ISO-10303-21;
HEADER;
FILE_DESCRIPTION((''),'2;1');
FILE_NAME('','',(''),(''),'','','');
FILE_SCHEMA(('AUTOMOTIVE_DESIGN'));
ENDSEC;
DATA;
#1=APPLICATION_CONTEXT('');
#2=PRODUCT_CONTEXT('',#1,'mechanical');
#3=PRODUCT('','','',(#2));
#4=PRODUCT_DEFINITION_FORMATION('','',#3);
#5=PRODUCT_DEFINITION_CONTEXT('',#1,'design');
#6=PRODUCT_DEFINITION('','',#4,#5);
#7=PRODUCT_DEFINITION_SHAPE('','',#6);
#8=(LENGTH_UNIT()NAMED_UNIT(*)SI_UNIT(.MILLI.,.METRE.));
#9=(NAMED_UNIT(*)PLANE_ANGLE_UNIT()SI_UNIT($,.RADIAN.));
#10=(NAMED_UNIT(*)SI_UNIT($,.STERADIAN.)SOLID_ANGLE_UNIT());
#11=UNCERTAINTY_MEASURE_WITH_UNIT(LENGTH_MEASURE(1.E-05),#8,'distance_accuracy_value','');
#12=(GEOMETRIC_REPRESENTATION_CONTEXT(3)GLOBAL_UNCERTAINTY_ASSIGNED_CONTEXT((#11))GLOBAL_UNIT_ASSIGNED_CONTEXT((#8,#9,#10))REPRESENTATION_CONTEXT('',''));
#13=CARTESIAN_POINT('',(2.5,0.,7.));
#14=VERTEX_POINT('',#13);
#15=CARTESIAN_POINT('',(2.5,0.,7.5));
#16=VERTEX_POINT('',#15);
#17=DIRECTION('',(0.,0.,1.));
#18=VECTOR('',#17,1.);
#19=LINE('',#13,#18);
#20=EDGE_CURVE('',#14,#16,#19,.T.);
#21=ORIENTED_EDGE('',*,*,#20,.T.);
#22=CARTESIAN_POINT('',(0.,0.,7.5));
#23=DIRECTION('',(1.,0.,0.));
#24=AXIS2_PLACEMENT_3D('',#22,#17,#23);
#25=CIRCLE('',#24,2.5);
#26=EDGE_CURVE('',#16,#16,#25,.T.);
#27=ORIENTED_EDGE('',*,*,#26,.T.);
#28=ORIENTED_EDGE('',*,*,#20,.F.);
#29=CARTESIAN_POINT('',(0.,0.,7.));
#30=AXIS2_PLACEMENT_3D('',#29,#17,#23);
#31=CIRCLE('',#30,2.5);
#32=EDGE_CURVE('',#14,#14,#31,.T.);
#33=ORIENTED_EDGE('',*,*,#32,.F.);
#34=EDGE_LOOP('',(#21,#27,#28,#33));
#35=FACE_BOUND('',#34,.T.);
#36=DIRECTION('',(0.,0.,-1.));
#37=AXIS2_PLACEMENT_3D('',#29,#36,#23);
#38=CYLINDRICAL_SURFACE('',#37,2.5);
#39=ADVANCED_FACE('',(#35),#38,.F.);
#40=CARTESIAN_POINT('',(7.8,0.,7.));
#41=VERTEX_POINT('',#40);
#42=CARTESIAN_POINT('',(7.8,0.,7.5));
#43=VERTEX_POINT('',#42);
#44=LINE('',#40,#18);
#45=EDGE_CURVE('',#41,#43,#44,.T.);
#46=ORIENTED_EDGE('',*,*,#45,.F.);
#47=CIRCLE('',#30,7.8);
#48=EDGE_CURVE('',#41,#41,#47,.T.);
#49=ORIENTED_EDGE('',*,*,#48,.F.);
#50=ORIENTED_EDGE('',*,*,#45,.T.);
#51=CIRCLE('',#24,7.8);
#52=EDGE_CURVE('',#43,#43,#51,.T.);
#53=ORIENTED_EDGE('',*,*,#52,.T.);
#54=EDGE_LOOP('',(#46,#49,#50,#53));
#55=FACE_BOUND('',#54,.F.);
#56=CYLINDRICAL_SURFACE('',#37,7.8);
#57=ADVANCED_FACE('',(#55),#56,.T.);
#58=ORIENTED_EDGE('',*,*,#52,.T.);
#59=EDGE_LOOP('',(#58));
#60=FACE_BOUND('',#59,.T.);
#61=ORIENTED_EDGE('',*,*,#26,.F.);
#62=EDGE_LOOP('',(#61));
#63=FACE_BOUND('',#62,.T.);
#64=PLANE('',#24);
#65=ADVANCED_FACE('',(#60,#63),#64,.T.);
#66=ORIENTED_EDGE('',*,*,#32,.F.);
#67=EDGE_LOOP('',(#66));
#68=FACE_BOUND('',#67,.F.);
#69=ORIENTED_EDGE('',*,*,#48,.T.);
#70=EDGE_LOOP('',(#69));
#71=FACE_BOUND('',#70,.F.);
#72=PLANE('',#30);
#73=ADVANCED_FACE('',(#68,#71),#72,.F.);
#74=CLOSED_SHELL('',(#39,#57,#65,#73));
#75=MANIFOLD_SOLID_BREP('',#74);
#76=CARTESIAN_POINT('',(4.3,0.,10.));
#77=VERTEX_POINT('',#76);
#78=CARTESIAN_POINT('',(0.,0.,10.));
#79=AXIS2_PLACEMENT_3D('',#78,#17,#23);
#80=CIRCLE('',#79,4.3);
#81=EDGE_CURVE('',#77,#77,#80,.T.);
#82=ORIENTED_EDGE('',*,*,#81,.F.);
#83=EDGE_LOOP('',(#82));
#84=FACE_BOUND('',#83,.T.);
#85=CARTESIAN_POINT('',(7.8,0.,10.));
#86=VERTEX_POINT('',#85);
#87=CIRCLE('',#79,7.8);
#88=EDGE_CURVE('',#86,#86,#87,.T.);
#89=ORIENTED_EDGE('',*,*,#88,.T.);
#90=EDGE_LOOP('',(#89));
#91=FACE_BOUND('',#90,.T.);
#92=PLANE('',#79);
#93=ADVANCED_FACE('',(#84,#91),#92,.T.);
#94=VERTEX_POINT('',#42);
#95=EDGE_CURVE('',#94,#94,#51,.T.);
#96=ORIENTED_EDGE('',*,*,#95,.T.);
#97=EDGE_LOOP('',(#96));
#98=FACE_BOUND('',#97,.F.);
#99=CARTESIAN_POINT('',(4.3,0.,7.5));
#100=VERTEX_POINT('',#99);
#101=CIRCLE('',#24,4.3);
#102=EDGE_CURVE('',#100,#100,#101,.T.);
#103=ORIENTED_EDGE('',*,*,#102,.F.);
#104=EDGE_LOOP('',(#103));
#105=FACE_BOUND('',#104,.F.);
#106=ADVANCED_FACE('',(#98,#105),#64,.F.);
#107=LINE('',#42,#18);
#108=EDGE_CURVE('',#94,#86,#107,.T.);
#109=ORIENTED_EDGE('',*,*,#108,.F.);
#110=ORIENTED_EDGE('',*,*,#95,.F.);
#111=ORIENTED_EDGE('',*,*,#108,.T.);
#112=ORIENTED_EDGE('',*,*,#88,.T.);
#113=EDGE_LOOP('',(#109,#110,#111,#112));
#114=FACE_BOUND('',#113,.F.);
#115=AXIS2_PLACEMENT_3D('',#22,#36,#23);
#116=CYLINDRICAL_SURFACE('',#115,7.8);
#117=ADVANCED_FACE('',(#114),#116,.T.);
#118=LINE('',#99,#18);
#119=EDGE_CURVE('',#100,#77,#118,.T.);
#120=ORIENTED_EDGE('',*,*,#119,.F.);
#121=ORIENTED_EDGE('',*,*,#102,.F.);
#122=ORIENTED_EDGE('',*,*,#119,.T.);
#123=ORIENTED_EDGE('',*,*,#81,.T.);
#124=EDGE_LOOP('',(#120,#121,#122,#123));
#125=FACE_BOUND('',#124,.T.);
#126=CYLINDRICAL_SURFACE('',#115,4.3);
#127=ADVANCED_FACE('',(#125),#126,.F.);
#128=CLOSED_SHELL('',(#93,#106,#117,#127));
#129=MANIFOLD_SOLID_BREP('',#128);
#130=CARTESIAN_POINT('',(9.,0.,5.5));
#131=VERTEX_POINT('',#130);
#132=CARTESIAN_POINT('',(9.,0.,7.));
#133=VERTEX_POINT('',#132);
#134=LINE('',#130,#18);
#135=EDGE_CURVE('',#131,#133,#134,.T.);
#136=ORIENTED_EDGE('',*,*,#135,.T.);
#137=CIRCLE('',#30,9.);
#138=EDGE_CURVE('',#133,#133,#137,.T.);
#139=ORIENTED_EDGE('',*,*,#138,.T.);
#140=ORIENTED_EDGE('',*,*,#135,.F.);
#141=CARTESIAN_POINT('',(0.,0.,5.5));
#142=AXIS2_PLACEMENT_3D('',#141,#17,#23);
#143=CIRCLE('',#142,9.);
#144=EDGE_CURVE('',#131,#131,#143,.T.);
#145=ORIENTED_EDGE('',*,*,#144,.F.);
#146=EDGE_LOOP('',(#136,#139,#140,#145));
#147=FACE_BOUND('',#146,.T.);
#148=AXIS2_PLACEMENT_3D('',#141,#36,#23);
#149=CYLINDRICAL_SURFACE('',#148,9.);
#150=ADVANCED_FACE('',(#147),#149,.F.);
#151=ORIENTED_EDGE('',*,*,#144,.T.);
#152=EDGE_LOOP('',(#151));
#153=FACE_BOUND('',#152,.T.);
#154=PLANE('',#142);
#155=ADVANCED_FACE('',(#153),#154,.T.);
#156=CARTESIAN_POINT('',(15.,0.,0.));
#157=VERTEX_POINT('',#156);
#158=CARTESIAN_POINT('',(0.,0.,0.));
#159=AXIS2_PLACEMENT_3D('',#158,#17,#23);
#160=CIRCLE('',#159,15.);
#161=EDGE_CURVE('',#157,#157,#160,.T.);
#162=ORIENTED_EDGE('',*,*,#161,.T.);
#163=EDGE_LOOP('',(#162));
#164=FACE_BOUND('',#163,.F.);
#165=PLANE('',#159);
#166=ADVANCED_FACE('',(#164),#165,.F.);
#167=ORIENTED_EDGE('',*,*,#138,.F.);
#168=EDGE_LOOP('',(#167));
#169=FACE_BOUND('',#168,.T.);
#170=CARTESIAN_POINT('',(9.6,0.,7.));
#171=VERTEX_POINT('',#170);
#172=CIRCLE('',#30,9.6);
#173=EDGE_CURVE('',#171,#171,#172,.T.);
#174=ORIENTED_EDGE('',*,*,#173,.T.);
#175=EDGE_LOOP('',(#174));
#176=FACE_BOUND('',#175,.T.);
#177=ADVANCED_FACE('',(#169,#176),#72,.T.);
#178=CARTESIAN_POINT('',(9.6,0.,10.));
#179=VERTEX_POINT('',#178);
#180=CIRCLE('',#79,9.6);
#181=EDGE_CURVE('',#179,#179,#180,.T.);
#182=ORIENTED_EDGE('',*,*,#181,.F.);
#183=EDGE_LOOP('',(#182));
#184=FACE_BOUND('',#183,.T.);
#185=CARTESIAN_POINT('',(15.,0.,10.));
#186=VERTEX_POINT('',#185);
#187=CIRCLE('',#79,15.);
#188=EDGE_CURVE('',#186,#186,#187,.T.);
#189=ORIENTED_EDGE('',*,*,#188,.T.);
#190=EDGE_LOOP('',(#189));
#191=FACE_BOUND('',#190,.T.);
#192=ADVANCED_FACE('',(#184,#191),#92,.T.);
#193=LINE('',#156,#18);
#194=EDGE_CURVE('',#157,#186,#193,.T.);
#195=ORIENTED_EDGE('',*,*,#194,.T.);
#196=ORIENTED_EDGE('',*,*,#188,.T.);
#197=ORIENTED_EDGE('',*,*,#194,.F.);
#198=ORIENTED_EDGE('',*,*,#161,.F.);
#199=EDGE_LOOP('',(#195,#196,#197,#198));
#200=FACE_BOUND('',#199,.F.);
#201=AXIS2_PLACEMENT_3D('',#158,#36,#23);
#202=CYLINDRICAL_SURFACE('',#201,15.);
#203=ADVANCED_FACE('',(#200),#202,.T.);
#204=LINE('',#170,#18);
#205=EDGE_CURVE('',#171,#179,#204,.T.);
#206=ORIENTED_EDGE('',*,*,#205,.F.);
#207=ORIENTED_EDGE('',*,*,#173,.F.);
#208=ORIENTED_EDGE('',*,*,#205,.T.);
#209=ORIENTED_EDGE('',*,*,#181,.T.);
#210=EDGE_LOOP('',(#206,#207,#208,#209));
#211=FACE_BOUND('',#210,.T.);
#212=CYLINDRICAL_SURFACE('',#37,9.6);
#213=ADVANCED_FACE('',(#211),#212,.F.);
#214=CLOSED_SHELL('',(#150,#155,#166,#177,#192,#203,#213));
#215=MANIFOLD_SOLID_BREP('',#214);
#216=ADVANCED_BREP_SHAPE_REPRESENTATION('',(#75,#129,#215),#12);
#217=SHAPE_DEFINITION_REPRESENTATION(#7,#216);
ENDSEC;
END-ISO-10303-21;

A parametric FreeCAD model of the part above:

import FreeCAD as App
import Part
import Sketcher
Q = App.Units.Quantity

doc = App.newDocument("Part")
body = doc.addObject("PartDesign::Body", "Body")

# Sketch on XY plane
sketch1 = body.newObject("Sketcher::SketchObject", "Sketch")
sketch1.AttachmentSupport = (doc.getObject("XY_Plane"), [""])
sketch1.MapMode = "FlatFace"
sketch1.AttachmentOffset = App.Placement(App.Vector(0, 0, 5.5), App.Rotation())
sketch1.addGeometry(Part.Circle(App.Vector(0, 0, 0), App.Vector(0, 0, 1), 9), False)
sketch1.addConstraint([
    Sketcher.Constraint("Coincident", 0, 3, -1, 1),
    Sketcher.Constraint("Diameter", 0, Q("18 mm")),
])
pad1 = body.newObject("PartDesign::Pad", "Pad")
pad1.Profile = sketch1
pad1.Length = 1.5
body2 = doc.addObject("PartDesign::Body", "Body001")

# Sketch on XY plane
sketch2 = body2.newObject("Sketcher::SketchObject", "Sketch001")
sketch2.AttachmentSupport = (doc.getObject("XY_Plane001"), [""])
sketch2.MapMode = "FlatFace"
sketch2.AttachmentOffset = App.Placement(App.Vector(0, 0, 7), App.Rotation())
sketch2.addGeometry(Part.Circle(App.Vector(0, 0, 0), App.Vector(0, 0, 1), 9.6), False)
sketch2.addConstraint([
    Sketcher.Constraint("Coincident", 0, 3, -1, 1),
    Sketcher.Constraint("Diameter", 0, Q("19.2 mm")),
])
pad2 = body2.newObject("PartDesign::Pad", "Pad001")
pad2.Profile = sketch2
pad2.Length = 3
body3 = doc.addObject("PartDesign::Body", "Body002")

# Sketch on XY plane
sketch3 = body3.newObject("Sketcher::SketchObject", "Sketch002")
sketch3.AttachmentSupport = (doc.getObject("XY_Plane002"), [""])
sketch3.MapMode = "FlatFace"
sketch3.addGeometry(Part.Circle(App.Vector(0, 0, 0), App.Vector(0, 0, 1), 15), False)
sketch3.addConstraint([
    Sketcher.Constraint("Coincident", 0, 3, -1, 1),
    Sketcher.Constraint("Diameter", 0, Q("30 mm")),
])
pad3 = body3.newObject("PartDesign::Pad", "Pad002")
pad3.Profile = sketch3
pad3.Length = 10
doc.recompute()

boolean = body3.newObject("PartDesign::Boolean", "Boolean")
boolean.Type = "Cut"
boolean.addObjects([body2])
doc.recompute()

boolean2 = body3.newObject("PartDesign::Boolean", "Boolean001")
boolean2.Type = "Cut"
boolean2.addObjects([body])
body4 = doc.addObject("PartDesign::Body", "Body003")

# Sketch on XY plane
sketch4 = body4.newObject("Sketcher::SketchObject", "Sketch003")
sketch4.AttachmentSupport = (doc.getObject("XY_Plane003"), [""])
sketch4.MapMode = "FlatFace"
sketch4.AttachmentOffset = App.Placement(App.Vector(0, 0, 7.5), App.Rotation())
sketch4.addGeometry(Part.Circle(App.Vector(0, 0, 0), App.Vector(0, 0, 1), 4.3), False)
sketch4.addConstraint([
    Sketcher.Constraint("Coincident", 0, 3, -1, 1),
    Sketcher.Constraint("Diameter", 0, Q("8.6 mm")),
])
pad4 = body4.newObject("PartDesign::Pad", "Pad003")
pad4.Profile = sketch4
pad4.Length = 2.5
body5 = doc.addObject("PartDesign::Body", "Body004")

# Sketch on XY plane
sketch5 = body5.newObject("Sketcher::SketchObject", "Sketch004")
sketch5.AttachmentSupport = (doc.getObject("XY_Plane004"), [""])
sketch5.MapMode = "FlatFace"
sketch5.AttachmentOffset = App.Placement(App.Vector(0, 0, 7.5), App.Rotation())
sketch5.addGeometry(Part.Circle(App.Vector(0, 0, 0), App.Vector(0, 0, 1), 7.8), False)
sketch5.addConstraint([
    Sketcher.Constraint("Coincident", 0, 3, -1, 1),
    Sketcher.Constraint("Diameter", 0, Q("15.6 mm")),
])
pad5 = body5.newObject("PartDesign::Pad", "Pad004")
pad5.Profile = sketch5
pad5.Length = 2.5
doc.recompute()

boolean3 = body5.newObject("PartDesign::Boolean", "Boolean002")
boolean3.Type = "Cut"
boolean3.addObjects([body4])
body6 = doc.addObject("PartDesign::Body", "Body005")

# Sketch on XY plane
sketch6 = body6.newObject("Sketcher::SketchObject", "Sketch005")
sketch6.AttachmentSupport = (doc.getObject("XY_Plane005"), [""])
sketch6.MapMode = "FlatFace"
sketch6.AttachmentOffset = App.Placement(App.Vector(0, 0, 7), App.Rotation())
sketch6.addGeometry(Part.Circle(App.Vector(0, 0, 0), App.Vector(0, 0, 1), 2.5), False)
sketch6.addConstraint([
    Sketcher.Constraint("Coincident", 0, 3, -1, 1),
    Sketcher.Constraint("Diameter", 0, Q("5 mm")),
])
pad6 = body6.newObject("PartDesign::Pad", "Pad005")
pad6.Profile = sketch6
pad6.Length = 0.5
body7 = doc.addObject("PartDesign::Body", "Body006")

# Sketch on XY plane
sketch7 = body7.newObject("Sketcher::SketchObject", "Sketch006")
sketch7.AttachmentSupport = (doc.getObject("XY_Plane006"), [""])
sketch7.MapMode = "FlatFace"
sketch7.AttachmentOffset = App.Placement(App.Vector(0, 0, 7), App.Rotation())
sketch7.addGeometry(Part.Circle(App.Vector(0, 0, 0), App.Vector(0, 0, 1), 7.8), False)
sketch7.addConstraint([
    Sketcher.Constraint("Coincident", 0, 3, -1, 1),
    Sketcher.Constraint("Diameter", 0, Q("15.6 mm")),
])
pad7 = body7.newObject("PartDesign::Pad", "Pad006")
pad7.Profile = sketch7
pad7.Length = 0.5
doc.recompute()

boolean4 = body7.newObject("PartDesign::Boolean", "Boolean003")
boolean4.Type = "Cut"
boolean4.addObjects([body6])

doc.recompute()
